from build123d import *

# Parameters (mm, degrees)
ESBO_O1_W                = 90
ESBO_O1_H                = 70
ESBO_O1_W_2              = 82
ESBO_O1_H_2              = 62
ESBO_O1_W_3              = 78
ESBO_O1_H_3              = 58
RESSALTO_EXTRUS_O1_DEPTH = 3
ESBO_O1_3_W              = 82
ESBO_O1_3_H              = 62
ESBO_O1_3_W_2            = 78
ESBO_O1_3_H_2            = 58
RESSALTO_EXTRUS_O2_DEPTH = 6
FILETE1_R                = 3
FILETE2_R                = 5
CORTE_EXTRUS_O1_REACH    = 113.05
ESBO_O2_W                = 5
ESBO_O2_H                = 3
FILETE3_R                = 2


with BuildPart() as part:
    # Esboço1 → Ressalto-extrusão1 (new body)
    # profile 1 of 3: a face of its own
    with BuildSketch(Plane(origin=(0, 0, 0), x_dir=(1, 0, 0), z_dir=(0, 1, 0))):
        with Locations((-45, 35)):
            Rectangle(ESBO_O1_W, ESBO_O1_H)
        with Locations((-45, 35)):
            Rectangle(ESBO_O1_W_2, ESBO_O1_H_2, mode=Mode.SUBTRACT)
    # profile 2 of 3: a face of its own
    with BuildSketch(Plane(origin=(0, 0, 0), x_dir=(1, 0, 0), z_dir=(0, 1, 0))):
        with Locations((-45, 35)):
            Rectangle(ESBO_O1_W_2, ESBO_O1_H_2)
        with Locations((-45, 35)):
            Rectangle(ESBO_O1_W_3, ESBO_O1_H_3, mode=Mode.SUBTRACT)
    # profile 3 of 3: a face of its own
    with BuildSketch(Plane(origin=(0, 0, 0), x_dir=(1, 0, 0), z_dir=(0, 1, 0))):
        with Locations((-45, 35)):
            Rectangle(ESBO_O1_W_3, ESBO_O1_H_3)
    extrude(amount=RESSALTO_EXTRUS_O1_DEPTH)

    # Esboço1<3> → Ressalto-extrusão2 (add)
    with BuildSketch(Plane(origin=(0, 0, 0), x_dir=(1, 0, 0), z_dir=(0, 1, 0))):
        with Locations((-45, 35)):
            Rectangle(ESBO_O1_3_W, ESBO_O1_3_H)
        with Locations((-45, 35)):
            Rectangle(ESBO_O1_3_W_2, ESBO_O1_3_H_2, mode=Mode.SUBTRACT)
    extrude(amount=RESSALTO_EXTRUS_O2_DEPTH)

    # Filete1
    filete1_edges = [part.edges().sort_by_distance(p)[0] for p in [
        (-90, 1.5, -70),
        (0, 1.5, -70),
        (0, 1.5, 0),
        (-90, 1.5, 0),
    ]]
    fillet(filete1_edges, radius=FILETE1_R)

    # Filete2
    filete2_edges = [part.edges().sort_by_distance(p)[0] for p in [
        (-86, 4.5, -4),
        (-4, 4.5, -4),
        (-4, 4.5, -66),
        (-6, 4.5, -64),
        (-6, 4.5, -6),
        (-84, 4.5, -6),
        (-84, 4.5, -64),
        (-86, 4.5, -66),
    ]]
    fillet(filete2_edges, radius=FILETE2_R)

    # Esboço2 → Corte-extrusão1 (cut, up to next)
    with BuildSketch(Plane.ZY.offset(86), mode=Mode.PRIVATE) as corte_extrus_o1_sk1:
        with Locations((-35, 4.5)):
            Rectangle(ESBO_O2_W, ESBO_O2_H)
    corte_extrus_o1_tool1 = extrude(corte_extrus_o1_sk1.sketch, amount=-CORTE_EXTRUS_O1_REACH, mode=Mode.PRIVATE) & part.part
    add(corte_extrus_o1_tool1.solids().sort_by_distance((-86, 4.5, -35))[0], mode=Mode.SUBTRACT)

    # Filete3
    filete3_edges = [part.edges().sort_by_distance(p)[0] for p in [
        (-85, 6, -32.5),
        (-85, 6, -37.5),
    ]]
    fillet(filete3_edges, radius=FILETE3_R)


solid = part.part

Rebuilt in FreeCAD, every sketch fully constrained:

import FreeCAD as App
import Part
import Sketcher

V = App.Vector


def edges_at(feature, points):
    """Names of the edges that pass closest to the given points."""
    edges = feature.Shape.Edges
    near = lambda p: min(range(len(edges)), key=lambda i: edges[i].distToShape(Part.Vertex(*p))[0])
    return sorted({f"Edge{near(p) + 1}" for p in points})

doc = App.newDocument("Part")
body = doc.addObject("PartDesign::Body", "Body")

# Sketch on XZ plane
sketch1 = body.newObject("Sketcher::SketchObject", "Sketch")
sketch1.AttachmentSupport = (doc.getObject("XZ_Plane"), [""])
sketch1.MapMode = "FlatFace"
sketch1.addGeometry(Part.LineSegment(V(-90, -70, 0), V(-90, 0, 0)), False)
sketch1.addGeometry(Part.LineSegment(V(-90, 0, 0), V(0, 0, 0)), False)
sketch1.addGeometry(Part.LineSegment(V(0, 0, 0), V(0, -70, 0)), False)
sketch1.addGeometry(Part.LineSegment(V(0, -70, 0), V(-90, -70, 0)), False)
sketch1.addConstraint(Sketcher.Constraint("Coincident", 0, 2, 1, 1))
sketch1.addConstraint(Sketcher.Constraint("Coincident", 1, 2, 2, 1))
sketch1.addConstraint(Sketcher.Constraint("Coincident", 2, 2, 3, 1))
sketch1.addConstraint(Sketcher.Constraint("Coincident", 3, 2, 0, 1))
sketch1.addConstraint(Sketcher.Constraint("Vertical", 0))
sketch1.addConstraint(Sketcher.Constraint("Horizontal", 1))
sketch1.addConstraint(Sketcher.Constraint("Vertical", 2))
sketch1.addConstraint(Sketcher.Constraint("Horizontal", 3))
sketch1.addConstraint(Sketcher.Constraint("Coincident", 1, 2, -1, 1))
sketch1.addConstraint(Sketcher.Constraint("DistanceX", 1, 1, 1, 2, 90.0))
sketch1.addConstraint(Sketcher.Constraint("DistanceY", 0, 1, 0, 2, 70.0))
pad1 = body.newObject("PartDesign::Pad", "Pad")
pad1.Profile = sketch1
pad1.Length = 3
pad1.Reversed = True

# Sketch on XZ plane
sketch2 = body.newObject("Sketcher::SketchObject", "Sketch001")
sketch2.AttachmentSupport = (doc.getObject("XZ_Plane"), [""])
sketch2.MapMode = "FlatFace"
sketch2.addGeometry(Part.LineSegment(V(-86, -66, 0), V(-86, -4, 0)), False)
sketch2.addGeometry(Part.LineSegment(V(-86, -4, 0), V(-4, -4, 0)), False)
sketch2.addGeometry(Part.LineSegment(V(-4, -4, 0), V(-4, -66, 0)), False)
sketch2.addGeometry(Part.LineSegment(V(-4, -66, 0), V(-86, -66, 0)), False)
sketch2.addGeometry(Part.LineSegment(V(-6, -6, 0), V(-84, -6, 0)), False)
sketch2.addGeometry(Part.LineSegment(V(-84, -6, 0), V(-84, -64, 0)), False)
sketch2.addGeometry(Part.LineSegment(V(-84, -64, 0), V(-6, -64, 0)), False)
sketch2.addGeometry(Part.LineSegment(V(-6, -64, 0), V(-6, -6, 0)), False)
sketch2.addConstraint(Sketcher.Constraint("Coincident", 0, 2, 1, 1))
sketch2.addConstraint(Sketcher.Constraint("Coincident", 1, 2, 2, 1))
sketch2.addConstraint(Sketcher.Constraint("Coincident", 2, 2, 3, 1))
sketch2.addConstraint(Sketcher.Constraint("Coincident", 3, 2, 0, 1))
sketch2.addConstraint(Sketcher.Constraint("Coincident", 4, 2, 5, 1))
sketch2.addConstraint(Sketcher.Constraint("Coincident", 5, 2, 6, 1))
sketch2.addConstraint(Sketcher.Constraint("Coincident", 6, 2, 7, 1))
sketch2.addConstraint(Sketcher.Constraint("Coincident", 7, 2, 4, 1))
sketch2.addConstraint(Sketcher.Constraint("Vertical", 0))
sketch2.addConstraint(Sketcher.Constraint("Horizontal", 1))
sketch2.addConstraint(Sketcher.Constraint("Vertical", 2))
sketch2.addConstraint(Sketcher.Constraint("Horizontal", 3))
sketch2.addConstraint(Sketcher.Constraint("Horizontal", 4))
sketch2.addConstraint(Sketcher.Constraint("Vertical", 5))
sketch2.addConstraint(Sketcher.Constraint("Horizontal", 6))
sketch2.addConstraint(Sketcher.Constraint("Vertical", 7))
sketch2.addConstraint(Sketcher.Constraint("DistanceX", 1, 1, 1, 2, 82.0))
sketch2.addConstraint(Sketcher.Constraint("DistanceX", 4, 2, 4, 1, 78.0))
sketch2.addConstraint(Sketcher.Constraint("DistanceY", 0, 1, 0, 2, 62.0))
sketch2.addConstraint(Sketcher.Constraint("DistanceY", 5, 2, 5, 1, 58.0))
sketch2.addConstraint(Sketcher.Constraint("DistanceX", 0, 2, -1, 1, 86.0))
sketch2.addConstraint(Sketcher.Constraint("DistanceY", 0, 2, -1, 1, 4.0))
sketch2.addConstraint(Sketcher.Constraint("DistanceX", 4, 2, -1, 1, 84.0))
sketch2.addConstraint(Sketcher.Constraint("DistanceY", 4, 2, -1, 1, 6.0))
pad2 = body.newObject("PartDesign::Pad", "Pad001")
pad2.Profile = sketch2
pad2.Length = 6
pad2.Reversed = True
doc.recompute()

fillet = body.newObject("PartDesign::Fillet", "Fillet")
fillet.Base = (pad2, edges_at(pad2, [
    (-90, 1.5, -70),
    (0, 1.5, -70),
    (0, 1.5, 0),
    (-90, 1.5, 0),
]))
fillet.Radius = 3
doc.recompute()

fillet2 = body.newObject("PartDesign::Fillet", "Fillet001")
fillet2.Base = (fillet, edges_at(fillet, [
    (-86, 4.5, -4),
    (-4, 4.5, -4),
    (-4, 4.5, -66),
    (-6, 4.5, -64),
    (-6, 4.5, -6),
    (-84, 4.5, -6),
    (-84, 4.5, -64),
    (-86, 4.5, -66),
]))
fillet2.Radius = 5

# Sketch on YZ plane
sketch3 = body.newObject("Sketcher::SketchObject", "Sketch002")
sketch3.AttachmentSupport = (doc.getObject("YZ_Plane"), [""])
sketch3.MapMode = "FlatFace"
sketch3.AttachmentOffset = App.Placement(V(0, 0, -86), App.Rotation())
sketch3.addGeometry(Part.LineSegment(V(6, -37.5, 0), V(3, -37.5, 0)), False)
sketch3.addGeometry(Part.LineSegment(V(3, -37.5, 0), V(3, -32.5, 0)), False)
sketch3.addGeometry(Part.LineSegment(V(3, -32.5, 0), V(6, -32.5, 0)), False)
sketch3.addGeometry(Part.LineSegment(V(6, -32.5, 0), V(6, -37.5, 0)), False)
sketch3.addConstraint(Sketcher.Constraint("Coincident", 0, 2, 1, 1))
sketch3.addConstraint(Sketcher.Constraint("Coincident", 1, 2, 2, 1))
sketch3.addConstraint(Sketcher.Constraint("Coincident", 2, 2, 3, 1))
sketch3.addConstraint(Sketcher.Constraint("Coincident", 3, 2, 0, 1))
sketch3.addConstraint(Sketcher.Constraint("Horizontal", 0))
sketch3.addConstraint(Sketcher.Constraint("Vertical", 1))
sketch3.addConstraint(Sketcher.Constraint("Horizontal", 2))
sketch3.addConstraint(Sketcher.Constraint("Vertical", 3))
sketch3.addConstraint(Sketcher.Constraint("DistanceX", 0, 2, 0, 1, 3.0))
sketch3.addConstraint(Sketcher.Constraint("DistanceY", 1, 1, 1, 2, 5.0))
sketch3.addConstraint(Sketcher.Constraint("DistanceX", -1, 1, 0, 2, 3.0))
sketch3.addConstraint(Sketcher.Constraint("DistanceY", 0, 2, -1, 1, 37.5))
pocket1 = body.newObject("PartDesign::Pocket", "Pocket")
pocket1.Profile = sketch3
pocket1.Type = "UpToFirst"
pocket1.Reversed = True
doc.recompute()

fillet3 = body.newObject("PartDesign::Fillet", "Fillet002")
fillet3.Base = (pocket1, edges_at(pocket1, [(-85, 6, -32.5), (-85, 6, -37.5)]))
fillet3.Radius = 2

doc.recompute()
